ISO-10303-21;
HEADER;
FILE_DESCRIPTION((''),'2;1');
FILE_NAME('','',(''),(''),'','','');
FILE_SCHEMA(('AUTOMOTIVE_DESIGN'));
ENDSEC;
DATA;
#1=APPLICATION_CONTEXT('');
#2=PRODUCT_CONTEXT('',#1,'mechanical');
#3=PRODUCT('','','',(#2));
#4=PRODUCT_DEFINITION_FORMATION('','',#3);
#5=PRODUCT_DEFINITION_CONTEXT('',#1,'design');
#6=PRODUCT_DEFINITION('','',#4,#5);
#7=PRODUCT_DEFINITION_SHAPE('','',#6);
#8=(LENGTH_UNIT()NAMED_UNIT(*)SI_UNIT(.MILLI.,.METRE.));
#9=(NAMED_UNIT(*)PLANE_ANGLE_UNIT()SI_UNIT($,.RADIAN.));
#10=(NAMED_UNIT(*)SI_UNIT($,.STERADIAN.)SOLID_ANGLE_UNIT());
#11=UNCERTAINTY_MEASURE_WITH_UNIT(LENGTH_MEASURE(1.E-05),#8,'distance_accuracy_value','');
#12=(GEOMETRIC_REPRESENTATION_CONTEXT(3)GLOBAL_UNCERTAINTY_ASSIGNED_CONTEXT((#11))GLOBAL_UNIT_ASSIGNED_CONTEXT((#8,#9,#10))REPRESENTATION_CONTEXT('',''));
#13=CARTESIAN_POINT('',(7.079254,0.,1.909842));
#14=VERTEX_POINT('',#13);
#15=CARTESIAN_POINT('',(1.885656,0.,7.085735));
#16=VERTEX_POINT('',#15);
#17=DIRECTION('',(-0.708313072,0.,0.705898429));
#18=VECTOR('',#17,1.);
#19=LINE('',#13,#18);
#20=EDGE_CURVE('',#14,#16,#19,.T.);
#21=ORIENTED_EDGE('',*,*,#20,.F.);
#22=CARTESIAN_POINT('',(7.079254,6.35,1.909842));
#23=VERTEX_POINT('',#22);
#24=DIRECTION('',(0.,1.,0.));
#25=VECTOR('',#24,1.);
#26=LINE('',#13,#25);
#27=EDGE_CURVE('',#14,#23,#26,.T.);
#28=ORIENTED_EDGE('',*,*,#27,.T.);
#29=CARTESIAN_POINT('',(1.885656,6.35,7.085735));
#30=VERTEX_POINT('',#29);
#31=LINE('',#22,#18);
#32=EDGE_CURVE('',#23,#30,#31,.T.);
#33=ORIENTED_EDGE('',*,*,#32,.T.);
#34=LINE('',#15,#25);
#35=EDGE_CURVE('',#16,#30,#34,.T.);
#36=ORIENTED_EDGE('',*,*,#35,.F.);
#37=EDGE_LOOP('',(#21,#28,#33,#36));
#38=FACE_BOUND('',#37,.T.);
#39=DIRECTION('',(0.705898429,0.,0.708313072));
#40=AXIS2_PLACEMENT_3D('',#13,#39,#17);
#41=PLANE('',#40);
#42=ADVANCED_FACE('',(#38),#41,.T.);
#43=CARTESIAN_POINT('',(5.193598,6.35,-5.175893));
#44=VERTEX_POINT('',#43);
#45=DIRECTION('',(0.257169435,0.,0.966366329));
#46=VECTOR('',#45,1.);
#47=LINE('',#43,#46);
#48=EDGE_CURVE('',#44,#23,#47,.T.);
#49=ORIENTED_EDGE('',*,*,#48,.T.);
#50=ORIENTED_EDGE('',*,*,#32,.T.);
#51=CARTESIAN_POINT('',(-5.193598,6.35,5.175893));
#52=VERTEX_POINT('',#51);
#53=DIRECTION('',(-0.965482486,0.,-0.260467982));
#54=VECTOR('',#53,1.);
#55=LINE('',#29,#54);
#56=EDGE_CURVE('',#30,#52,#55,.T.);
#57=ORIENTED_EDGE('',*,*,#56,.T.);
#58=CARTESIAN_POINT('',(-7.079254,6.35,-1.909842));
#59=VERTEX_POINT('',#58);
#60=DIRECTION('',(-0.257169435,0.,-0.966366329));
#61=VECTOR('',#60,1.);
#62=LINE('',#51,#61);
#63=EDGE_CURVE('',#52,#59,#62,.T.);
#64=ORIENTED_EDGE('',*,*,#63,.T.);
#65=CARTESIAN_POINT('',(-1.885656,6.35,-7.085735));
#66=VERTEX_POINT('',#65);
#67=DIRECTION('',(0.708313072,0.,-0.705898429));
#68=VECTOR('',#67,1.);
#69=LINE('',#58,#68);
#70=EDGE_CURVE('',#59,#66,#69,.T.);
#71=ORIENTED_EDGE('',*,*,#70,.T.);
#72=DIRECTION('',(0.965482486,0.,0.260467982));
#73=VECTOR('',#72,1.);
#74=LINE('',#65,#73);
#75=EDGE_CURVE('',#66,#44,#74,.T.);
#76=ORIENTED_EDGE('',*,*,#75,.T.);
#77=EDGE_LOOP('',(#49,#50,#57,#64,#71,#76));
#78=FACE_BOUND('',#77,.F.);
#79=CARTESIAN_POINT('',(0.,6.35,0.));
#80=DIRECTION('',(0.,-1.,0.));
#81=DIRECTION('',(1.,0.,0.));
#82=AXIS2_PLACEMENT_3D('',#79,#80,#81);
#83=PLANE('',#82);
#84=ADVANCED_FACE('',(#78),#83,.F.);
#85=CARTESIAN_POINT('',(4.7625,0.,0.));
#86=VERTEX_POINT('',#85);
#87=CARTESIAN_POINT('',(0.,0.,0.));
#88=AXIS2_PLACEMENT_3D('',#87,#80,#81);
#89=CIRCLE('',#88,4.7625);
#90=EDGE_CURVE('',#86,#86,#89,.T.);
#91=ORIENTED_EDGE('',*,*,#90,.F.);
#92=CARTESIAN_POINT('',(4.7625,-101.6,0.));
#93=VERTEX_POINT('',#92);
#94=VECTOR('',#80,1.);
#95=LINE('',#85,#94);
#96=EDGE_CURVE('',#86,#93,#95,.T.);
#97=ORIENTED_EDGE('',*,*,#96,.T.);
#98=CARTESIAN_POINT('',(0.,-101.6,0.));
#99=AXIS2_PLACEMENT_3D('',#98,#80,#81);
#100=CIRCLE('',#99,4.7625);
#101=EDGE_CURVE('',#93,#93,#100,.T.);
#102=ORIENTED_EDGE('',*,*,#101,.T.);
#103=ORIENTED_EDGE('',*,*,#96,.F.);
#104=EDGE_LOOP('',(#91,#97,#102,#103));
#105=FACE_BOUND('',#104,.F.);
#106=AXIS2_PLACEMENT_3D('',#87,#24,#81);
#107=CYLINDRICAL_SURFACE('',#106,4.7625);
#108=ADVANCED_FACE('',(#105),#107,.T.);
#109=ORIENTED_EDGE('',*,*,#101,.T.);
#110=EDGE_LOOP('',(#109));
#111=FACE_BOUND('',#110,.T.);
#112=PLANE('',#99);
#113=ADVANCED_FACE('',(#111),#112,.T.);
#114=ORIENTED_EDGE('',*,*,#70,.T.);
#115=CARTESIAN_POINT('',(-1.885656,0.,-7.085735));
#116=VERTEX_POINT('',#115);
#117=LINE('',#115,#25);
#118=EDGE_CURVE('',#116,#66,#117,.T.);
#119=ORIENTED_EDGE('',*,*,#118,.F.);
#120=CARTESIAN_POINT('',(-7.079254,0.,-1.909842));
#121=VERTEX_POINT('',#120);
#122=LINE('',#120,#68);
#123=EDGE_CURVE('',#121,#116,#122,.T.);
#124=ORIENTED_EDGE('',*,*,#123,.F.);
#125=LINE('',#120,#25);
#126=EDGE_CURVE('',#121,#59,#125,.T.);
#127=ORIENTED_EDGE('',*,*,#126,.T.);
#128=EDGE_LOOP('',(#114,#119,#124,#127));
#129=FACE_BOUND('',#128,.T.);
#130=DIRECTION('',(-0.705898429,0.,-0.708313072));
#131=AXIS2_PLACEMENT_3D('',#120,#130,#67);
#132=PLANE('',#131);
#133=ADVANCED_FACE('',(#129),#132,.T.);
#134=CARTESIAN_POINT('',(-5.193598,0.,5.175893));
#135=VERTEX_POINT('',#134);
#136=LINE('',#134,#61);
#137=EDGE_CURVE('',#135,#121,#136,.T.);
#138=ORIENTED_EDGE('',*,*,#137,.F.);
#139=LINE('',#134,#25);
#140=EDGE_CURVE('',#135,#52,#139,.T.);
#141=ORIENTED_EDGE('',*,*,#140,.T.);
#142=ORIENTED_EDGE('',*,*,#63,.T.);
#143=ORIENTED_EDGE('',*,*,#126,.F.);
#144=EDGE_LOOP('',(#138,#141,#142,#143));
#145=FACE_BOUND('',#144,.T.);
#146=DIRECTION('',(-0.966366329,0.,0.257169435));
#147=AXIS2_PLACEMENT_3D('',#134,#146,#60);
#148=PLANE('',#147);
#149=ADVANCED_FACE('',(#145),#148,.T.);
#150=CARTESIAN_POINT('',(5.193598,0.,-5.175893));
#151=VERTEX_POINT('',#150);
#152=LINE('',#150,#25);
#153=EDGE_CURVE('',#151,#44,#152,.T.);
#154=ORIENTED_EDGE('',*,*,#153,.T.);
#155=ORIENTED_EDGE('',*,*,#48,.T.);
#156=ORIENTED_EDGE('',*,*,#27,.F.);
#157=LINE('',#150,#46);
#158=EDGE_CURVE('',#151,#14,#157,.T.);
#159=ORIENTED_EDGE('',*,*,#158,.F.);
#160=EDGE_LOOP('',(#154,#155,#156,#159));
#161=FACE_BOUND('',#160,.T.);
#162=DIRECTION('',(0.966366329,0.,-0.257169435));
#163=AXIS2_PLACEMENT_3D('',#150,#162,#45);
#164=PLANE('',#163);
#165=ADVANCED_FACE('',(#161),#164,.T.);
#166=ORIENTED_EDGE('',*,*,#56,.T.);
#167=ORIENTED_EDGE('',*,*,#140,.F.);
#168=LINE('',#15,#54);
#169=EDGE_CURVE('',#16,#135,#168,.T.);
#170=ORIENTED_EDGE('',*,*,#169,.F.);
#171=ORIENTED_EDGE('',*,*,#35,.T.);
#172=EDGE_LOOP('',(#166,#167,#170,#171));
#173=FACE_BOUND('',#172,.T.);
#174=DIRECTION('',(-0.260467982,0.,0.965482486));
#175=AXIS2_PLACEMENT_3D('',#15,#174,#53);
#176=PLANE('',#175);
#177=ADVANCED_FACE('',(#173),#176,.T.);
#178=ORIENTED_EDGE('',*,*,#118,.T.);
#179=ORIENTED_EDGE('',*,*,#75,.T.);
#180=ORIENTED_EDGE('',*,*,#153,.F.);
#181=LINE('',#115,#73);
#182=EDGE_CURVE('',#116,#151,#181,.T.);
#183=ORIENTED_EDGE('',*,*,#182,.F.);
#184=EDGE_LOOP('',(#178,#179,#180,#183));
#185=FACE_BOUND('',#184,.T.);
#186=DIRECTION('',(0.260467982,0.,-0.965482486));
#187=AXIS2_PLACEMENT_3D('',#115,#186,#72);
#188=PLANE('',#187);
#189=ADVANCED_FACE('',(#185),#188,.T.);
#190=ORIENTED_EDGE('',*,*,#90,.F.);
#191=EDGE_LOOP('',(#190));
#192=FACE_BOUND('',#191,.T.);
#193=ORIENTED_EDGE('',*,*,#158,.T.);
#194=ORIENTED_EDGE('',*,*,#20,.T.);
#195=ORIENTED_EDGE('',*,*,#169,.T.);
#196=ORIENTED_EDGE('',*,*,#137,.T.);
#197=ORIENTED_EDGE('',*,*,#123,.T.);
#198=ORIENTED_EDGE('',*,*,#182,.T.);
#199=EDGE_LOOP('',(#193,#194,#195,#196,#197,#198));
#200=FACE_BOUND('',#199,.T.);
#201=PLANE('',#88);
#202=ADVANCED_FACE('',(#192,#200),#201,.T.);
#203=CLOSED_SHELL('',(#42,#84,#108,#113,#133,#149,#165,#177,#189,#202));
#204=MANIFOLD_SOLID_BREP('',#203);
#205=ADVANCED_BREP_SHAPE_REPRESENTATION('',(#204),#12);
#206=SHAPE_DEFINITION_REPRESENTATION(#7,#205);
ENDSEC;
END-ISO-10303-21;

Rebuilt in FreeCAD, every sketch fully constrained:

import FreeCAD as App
import Part
import Sketcher
Q = App.Units.Quantity

doc = App.newDocument("Part")
body = doc.addObject("PartDesign::Body", "Body")

# Sketch on XZ plane
sketch1 = body.newObject("Sketcher::SketchObject", "Sketch")
sketch1.AttachmentSupport = (doc.getObject("XZ_Plane"), [""])
sketch1.MapMode = "FlatFace"
sketch1.addGeometry(Part.Circle(App.Vector(0, 0, 0), App.Vector(0, 0, 1), 4.8), False)
sketch1.addConstraint([
    Sketcher.Constraint("Coincident", 0, 3, -1, 1),
    Sketcher.Constraint("Diameter", 0, Q("0.375 in")),
])
pad1 = body.newObject("PartDesign::Pad", "Pad")
pad1.Profile = sketch1
pad1.Length = Q("4 in")

# Sketch on XZ plane
sketch2 = body.newObject("Sketcher::SketchObject", "Sketch001")
sketch2.AttachmentSupport = (doc.getObject("XZ_Plane"), [""])
sketch2.MapMode = "FlatFace"
sketch2.addGeometry([
    Part.LineSegment(App.Vector(5, -5, 0), App.Vector(7, 2, 0)),  # 0
    Part.LineSegment(App.Vector(7, 2, 0), App.Vector(2, 7, 0)),  # 1
    Part.LineSegment(App.Vector(2, 7, 0), App.Vector(-5, 5, 0)),  # 2
    Part.LineSegment(App.Vector(-5, 5, 0), App.Vector(-7, -2, 0)),  # 3
    Part.LineSegment(App.Vector(-7, -2, 0), App.Vector(-2, -7, 0)),  # 4
    Part.LineSegment(App.Vector(-2, -7, 0), App.Vector(5, -5, 0)),  # 5
], False)
sketch2.addConstraint([
    Sketcher.Constraint("Coincident", 0, 2, 1, 1),
    Sketcher.Constraint("Coincident", 1, 2, 2, 1),
    Sketcher.Constraint("Coincident", 2, 2, 3, 1),
    Sketcher.Constraint("Coincident", 3, 2, 4, 1),
    Sketcher.Constraint("Coincident", 4, 2, 5, 1),
    Sketcher.Constraint("Coincident", 5, 2, 0, 1),
    Sketcher.Constraint("Symmetric", 0, 2, 3, 2, -1, 1),
    Sketcher.Constraint("Symmetric", 1, 2, 4, 2, -1, 1),
    Sketcher.Constraint("Symmetric", 2, 2, 5, 2, -1, 1),
    Sketcher.Constraint("Equal", 0, 1),
    Sketcher.Constraint("Equal", 1, 2),
    Sketcher.Constraint("Distance", 0, Q("7.332349 mm")),
    Sketcher.Constraint("DistanceY", 2, 2, 1, 2, Q("1.909842 mm")),
    Sketcher.Constraint("DistanceY", 0, 2, 2, 2, Q("3.266051 mm")),
    Sketcher.Constraint("DistanceX", 3, 2, 1, 2, Q("8.96491 mm")),
])
pad2 = body.newObject("PartDesign::Pad", "Pad001")
pad2.Profile = sketch2
pad2.Length = Q("0.25 in")
pad2.Reversed = True

doc.recompute()
